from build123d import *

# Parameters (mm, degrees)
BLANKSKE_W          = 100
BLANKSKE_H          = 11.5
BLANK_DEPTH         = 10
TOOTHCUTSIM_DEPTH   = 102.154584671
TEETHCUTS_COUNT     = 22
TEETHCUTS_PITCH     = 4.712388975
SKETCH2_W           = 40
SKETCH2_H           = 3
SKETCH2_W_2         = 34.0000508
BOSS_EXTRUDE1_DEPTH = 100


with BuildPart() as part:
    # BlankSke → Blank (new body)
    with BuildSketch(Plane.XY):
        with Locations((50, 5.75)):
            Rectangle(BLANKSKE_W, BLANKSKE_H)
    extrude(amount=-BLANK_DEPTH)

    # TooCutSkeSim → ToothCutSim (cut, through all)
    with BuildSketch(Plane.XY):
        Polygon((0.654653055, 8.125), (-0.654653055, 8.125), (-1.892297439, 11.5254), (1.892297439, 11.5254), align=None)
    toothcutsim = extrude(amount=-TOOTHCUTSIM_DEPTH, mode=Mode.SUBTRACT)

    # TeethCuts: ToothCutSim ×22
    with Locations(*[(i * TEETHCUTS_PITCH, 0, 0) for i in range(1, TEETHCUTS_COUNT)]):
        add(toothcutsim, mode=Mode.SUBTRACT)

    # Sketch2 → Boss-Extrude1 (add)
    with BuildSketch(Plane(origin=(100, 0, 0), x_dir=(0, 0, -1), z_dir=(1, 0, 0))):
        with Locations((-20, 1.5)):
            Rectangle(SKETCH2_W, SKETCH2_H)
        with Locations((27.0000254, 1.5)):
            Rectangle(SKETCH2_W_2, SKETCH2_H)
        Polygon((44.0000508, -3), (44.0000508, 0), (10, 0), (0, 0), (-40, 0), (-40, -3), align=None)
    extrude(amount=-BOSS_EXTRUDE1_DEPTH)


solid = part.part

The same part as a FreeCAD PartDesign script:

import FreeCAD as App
import Part
import Sketcher
from FreeCAD import Vector
Q = App.Units.Quantity

doc = App.newDocument("Part")
body = doc.addObject("PartDesign::Body", "Body")

sketch1 = body.newObject("Sketcher::SketchObject", "Sketch")
sketch1.AttachmentSupport = (doc.getObject("XY_Plane"), [""])
sketch1.MapMode = "FlatFace"
sketch1.addGeometry(Part.LineSegment(Vector(0, 12, 0), Vector(0, 0, 0)), False)
sketch1.addGeometry(Part.LineSegment(Vector(0, 0, 0), Vector(100, 0, 0)), False)
sketch1.addGeometry(Part.LineSegment(Vector(100, 0, 0), Vector(100, 12, 0)), False)
sketch1.addGeometry(Part.LineSegment(Vector(100, 12, 0), Vector(0, 12, 0)), False)
sketch1.addConstraint(Sketcher.Constraint("Coincident", 0, 2, 1, 1))
sketch1.addConstraint(Sketcher.Constraint("Coincident", 1, 2, 2, 1))
sketch1.addConstraint(Sketcher.Constraint("Coincident", 2, 2, 3, 1))
sketch1.addConstraint(Sketcher.Constraint("Coincident", 3, 2, 0, 1))
sketch1.addConstraint(Sketcher.Constraint("Vertical", 0))
sketch1.addConstraint(Sketcher.Constraint("Horizontal", 1))
sketch1.addConstraint(Sketcher.Constraint("Vertical", 2))
sketch1.addConstraint(Sketcher.Constraint("Horizontal", 3))
sketch1.addConstraint(Sketcher.Constraint("Coincident", 0, 2, -1, 1))
sketch1.addConstraint(Sketcher.Constraint("DistanceX", 1, 1, 1, 2, 100.0))
sketch1.addConstraint(Sketcher.Constraint("DistanceY", 0, 2, 0, 1, 11.5))
pad1 = body.newObject("PartDesign::Pad", "Pad")
pad1.Profile = sketch1
pad1.Length = 10
pad1.Reversed = True

sketch2 = body.newObject("Sketcher::SketchObject", "Sketch001")
sketch2.AttachmentSupport = (doc.getObject("XY_Plane"), [""])
sketch2.MapMode = "FlatFace"
sketch2.addGeometry(Part.LineSegment(Vector(-0.7, 8.1, 0), Vector(0.7, 8.1, 0)), False)
sketch2.addGeometry(Part.LineSegment(Vector(0.7, 8.1, 0), Vector(1.9, 11.5, 0)), False)
sketch2.addGeometry(Part.LineSegment(Vector(1.9, 11.5, 0), Vector(-1.9, 11.5, 0)), False)
sketch2.addGeometry(Part.LineSegment(Vector(-1.9, 11.5, 0), Vector(-0.7, 8.1, 0)), False)
sketch2.addConstraint(Sketcher.Constraint("Coincident", 0, 2, 1, 1))
sketch2.addConstraint(Sketcher.Constraint("Coincident", 1, 2, 2, 1))
sketch2.addConstraint(Sketcher.Constraint("Coincident", 2, 2, 3, 1))
sketch2.addConstraint(Sketcher.Constraint("Coincident", 3, 2, 0, 1))
sketch2.addConstraint(Sketcher.Constraint("Horizontal", 0))
sketch2.addConstraint(Sketcher.Constraint("Horizontal", 2))
sketch2.addConstraint(Sketcher.Constraint("Equal", 1, 3))
sketch2.addConstraint(Sketcher.Constraint("Angle", 1, Q("70 deg")))
sketch2.addConstraint(Sketcher.Constraint("DistanceY", -1, 1, 0, 2, 8.125))
sketch2.addConstraint(Sketcher.Constraint("DistanceY", -1, 1, 1, 2, 11.5254))
sketch2.addConstraint(Sketcher.Constraint("DistanceX", 0, 1, 0, 2, 1.309306))
sketch2.addConstraint(Sketcher.Constraint("DistanceX", -1, 1, 0, 2, 0.654653))
pocket1 = body.newObject("PartDesign::Pocket", "Pocket")
pocket1.Profile = sketch2
pocket1.Type = "ThroughAll"
doc.recompute()

linearpattern = body.newObject("PartDesign::LinearPattern", "LinearPattern")
linearpattern.Originals = [pocket1]
linearpattern.Direction = (doc.getObject("X_Axis"), [""])
linearpattern.Mode = "offset"
linearpattern.Offset = 4.712389
linearpattern.Occurrences = 22
body.Tip = linearpattern

sketch3 = body.newObject("Sketcher::SketchObject", "Sketch002")
sketch3.AttachmentSupport = (doc.getObject("YZ_Plane"), [""])
sketch3.MapMode = "FlatFace"
sketch3.AttachmentOffset = App.Placement(Vector(0, 0, 100), App.Rotation())
sketch3.addGeometry(Part.LineSegment(Vector(3, 40, 0), Vector(-3, 40, 0)), False)
sketch3.addGeometry(Part.LineSegment(Vector(-3, 40, 0), Vector(-3, -44, 0)), False)
sketch3.addGeometry(Part.LineSegment(Vector(-3, -44, 0), Vector(3, -44, 0)), False)
sketch3.addGeometry(Part.LineSegment(Vector(3, -44, 0), Vector(3, -10, 0)), False)
sketch3.addGeometry(Part.LineSegment(Vector(3, -10, 0), Vector(0, -10, 0)), False)
sketch3.addGeometry(Part.LineSegment(Vector(0, -10, 0), Vector(0, 0, 0)), False)
sketch3.addGeometry(Part.LineSegment(Vector(0, 0, 0), Vector(3, 0, 0)), False)
sketch3.addGeometry(Part.LineSegment(Vector(3, 0, 0), Vector(3, 40, 0)), False)
sketch3.addConstraint(Sketcher.Constraint("Coincident", 0, 2, 1, 1))
sketch3.addConstraint(Sketcher.Constraint("Coincident", 1, 2, 2, 1))
sketch3.addConstraint(Sketcher.Constraint("Coincident", 2, 2, 3, 1))
sketch3.addConstraint(Sketcher.Constraint("Coincident", 3, 2, 4, 1))
sketch3.addConstraint(Sketcher.Constraint("Coincident", 4, 2, 5, 1))
sketch3.addConstraint(Sketcher.Constraint("Coincident", 5, 2, 6, 1))
sketch3.addConstraint(Sketcher.Constraint("Coincident", 6, 2, 7, 1))
sketch3.addConstraint(Sketcher.Constraint("Coincident", 7, 2, 0, 1))
sketch3.addConstraint(Sketcher.Constraint("Horizontal", 0))
sketch3.addConstraint(Sketcher.Constraint("Vertical", 1))
sketch3.addConstraint(Sketcher.Constraint("Horizontal", 2))
sketch3.addConstraint(Sketcher.Constraint("Vertical", 3))
sketch3.addConstraint(Sketcher.Constraint("Horizontal", 4))
sketch3.addConstraint(Sketcher.Constraint("Vertical", 5))
sketch3.addConstraint(Sketcher.Constraint("Horizontal", 6))
sketch3.addConstraint(Sketcher.Constraint("Vertical", 7))
sketch3.addConstraint(Sketcher.Constraint("Coincident", 5, 2, -1, 1))
sketch3.addConstraint(Sketcher.Constraint("Vertical", 3, 2, 6, 2))
sketch3.addConstraint(Sketcher.Constraint("DistanceX", 0, 2, 0, 1, 6.0))
sketch3.addConstraint(Sketcher.Constraint("DistanceX", 4, 2, 4, 1, 3.0))
sketch3.addConstraint(Sketcher.Constraint("DistanceY", 5, 1, 5, 2, 10.0))
sketch3.addConstraint(Sketcher.Constraint("DistanceY", 7, 1, 7, 2, 40.0))
sketch3.addConstraint(Sketcher.Constraint("DistanceY", 1, 2, 1, 1, 84.000051))
pad2 = body.newObject("PartDesign::Pad", "Pad001")
pad2.Profile = sketch3
pad2.Length = 100
pad2.Reversed = True

doc.recompute()
